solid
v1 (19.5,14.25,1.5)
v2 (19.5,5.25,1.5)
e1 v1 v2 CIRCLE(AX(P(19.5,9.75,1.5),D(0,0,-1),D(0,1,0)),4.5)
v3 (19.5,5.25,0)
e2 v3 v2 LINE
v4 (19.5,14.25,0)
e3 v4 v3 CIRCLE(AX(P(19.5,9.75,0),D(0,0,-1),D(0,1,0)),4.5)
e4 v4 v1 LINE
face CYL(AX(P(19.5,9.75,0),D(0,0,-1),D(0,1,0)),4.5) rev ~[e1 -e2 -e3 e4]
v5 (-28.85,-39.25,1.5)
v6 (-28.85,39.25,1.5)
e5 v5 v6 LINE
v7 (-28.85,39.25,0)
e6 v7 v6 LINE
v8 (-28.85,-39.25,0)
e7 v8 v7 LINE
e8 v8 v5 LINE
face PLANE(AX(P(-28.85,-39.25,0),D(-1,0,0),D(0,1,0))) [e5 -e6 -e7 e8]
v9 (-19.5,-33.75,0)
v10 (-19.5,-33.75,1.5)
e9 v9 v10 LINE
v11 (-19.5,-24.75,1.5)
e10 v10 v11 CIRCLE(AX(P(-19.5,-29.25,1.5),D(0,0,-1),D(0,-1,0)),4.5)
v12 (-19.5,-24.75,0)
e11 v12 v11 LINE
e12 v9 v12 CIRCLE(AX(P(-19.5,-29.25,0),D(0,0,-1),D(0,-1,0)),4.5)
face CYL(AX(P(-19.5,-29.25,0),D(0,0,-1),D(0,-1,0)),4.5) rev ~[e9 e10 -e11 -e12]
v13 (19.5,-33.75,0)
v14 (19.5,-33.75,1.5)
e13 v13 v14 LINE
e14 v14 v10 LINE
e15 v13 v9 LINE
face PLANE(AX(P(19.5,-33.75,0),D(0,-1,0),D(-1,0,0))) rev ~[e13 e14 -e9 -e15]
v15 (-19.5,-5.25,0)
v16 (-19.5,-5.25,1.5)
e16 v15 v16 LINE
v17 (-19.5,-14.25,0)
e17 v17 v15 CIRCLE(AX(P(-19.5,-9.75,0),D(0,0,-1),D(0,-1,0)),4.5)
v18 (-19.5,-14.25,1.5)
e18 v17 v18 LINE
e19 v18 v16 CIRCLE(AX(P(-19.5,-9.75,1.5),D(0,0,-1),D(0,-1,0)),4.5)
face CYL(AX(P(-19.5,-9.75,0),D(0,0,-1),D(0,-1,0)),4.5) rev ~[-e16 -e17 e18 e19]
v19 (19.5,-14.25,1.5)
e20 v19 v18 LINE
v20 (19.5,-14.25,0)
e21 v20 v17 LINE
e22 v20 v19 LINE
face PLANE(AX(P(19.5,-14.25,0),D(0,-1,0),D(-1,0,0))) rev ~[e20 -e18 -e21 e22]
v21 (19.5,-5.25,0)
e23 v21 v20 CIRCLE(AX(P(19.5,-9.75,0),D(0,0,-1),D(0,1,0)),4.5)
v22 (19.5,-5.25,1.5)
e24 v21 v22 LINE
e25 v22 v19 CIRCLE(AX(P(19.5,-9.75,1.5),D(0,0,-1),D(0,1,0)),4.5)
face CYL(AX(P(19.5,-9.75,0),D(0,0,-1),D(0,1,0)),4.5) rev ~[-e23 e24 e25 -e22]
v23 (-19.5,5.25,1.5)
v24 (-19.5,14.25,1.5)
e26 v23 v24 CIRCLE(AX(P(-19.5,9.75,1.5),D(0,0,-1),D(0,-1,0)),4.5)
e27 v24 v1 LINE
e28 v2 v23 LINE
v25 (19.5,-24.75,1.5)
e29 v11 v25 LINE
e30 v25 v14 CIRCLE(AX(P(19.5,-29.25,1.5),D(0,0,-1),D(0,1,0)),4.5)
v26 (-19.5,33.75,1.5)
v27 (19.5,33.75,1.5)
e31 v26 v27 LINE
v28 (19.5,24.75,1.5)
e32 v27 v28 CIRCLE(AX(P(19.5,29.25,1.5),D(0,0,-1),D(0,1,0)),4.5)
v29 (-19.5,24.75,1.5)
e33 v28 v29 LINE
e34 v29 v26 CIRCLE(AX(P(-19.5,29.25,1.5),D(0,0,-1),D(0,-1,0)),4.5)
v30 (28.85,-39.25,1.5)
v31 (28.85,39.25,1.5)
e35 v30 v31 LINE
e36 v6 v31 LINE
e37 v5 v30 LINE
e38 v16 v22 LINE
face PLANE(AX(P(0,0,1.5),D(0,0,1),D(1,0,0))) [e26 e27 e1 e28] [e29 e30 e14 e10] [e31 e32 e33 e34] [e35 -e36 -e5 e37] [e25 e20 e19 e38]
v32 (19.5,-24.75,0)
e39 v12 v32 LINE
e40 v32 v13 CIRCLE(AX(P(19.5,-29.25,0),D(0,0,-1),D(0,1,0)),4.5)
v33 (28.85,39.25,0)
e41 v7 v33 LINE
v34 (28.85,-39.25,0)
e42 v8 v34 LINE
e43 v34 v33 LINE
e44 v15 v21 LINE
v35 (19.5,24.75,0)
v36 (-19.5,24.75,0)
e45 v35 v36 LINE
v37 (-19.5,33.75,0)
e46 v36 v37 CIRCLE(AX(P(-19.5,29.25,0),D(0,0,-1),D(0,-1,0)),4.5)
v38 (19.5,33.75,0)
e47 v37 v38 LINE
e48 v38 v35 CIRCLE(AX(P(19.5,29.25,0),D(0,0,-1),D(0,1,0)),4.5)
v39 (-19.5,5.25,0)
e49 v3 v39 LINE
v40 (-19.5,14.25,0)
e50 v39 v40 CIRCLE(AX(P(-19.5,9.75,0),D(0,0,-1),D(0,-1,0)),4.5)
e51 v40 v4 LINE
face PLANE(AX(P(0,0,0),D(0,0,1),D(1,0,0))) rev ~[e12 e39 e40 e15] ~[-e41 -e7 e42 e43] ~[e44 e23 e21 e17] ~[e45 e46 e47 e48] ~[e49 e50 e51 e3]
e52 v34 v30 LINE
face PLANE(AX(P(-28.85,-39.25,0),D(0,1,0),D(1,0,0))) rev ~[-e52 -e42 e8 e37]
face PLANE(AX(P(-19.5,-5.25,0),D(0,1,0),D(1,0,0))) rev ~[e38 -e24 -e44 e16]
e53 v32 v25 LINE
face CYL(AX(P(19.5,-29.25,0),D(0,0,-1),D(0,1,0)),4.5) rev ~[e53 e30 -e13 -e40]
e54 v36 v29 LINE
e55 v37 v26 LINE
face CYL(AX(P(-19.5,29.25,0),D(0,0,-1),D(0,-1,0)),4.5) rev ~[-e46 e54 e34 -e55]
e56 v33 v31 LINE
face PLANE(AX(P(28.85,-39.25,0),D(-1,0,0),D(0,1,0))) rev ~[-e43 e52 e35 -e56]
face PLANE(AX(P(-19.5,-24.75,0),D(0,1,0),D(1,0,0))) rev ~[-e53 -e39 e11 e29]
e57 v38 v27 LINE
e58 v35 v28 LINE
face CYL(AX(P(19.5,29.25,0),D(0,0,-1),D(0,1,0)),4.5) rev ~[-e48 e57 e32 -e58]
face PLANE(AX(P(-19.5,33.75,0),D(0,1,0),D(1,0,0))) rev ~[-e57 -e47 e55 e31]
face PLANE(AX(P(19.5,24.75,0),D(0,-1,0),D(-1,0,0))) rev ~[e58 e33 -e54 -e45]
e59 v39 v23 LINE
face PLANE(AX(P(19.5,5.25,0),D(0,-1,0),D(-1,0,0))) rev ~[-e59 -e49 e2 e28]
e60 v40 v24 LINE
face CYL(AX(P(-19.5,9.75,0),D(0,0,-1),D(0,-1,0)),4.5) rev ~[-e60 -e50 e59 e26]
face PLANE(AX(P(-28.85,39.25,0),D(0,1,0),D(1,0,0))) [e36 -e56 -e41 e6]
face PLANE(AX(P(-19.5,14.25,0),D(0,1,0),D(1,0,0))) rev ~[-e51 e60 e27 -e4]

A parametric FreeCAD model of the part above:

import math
import FreeCAD as App
import Part
import Sketcher
from FreeCAD import Vector

doc = App.newDocument("Part")
params = doc.addObject("Spreadsheet::Sheet", "Params")
for row, (alias, value) in enumerate([
    ("sketch1_radius", "4.5 mm"),
    ("sketch1_width", "39 mm"),
    ("sketch1_width2", "57.7 mm"),
    ("sketch1_height", "78.5 mm"),
    ("pad1_length", "1.5 mm"),
], start=1):
    params.set(f"A{row}", alias)
    params.set(f"B{row}", "=" + value)
    params.setAlias(f"B{row}", alias)

body = doc.addObject("PartDesign::Body", "Body")

# Sketch on XY plane
sketch1 = doc.addObject("Sketcher::SketchObject", "Sketch")
body.addObject(sketch1)
sketch1.AttachmentSupport = (doc.XY_Plane, [""])
sketch1.MapMode = "FlatFace"
sketch1.addGeometry(Part.LineSegment(Vector(-28.9, 39.2, 0), Vector(-28.9, -39.2, 0)), False)
sketch1.addGeometry(Part.LineSegment(Vector(-28.9, -39.2, 0), Vector(28.9, -39.2, 0)), False)
sketch1.addGeometry(Part.LineSegment(Vector(28.9, -39.2, 0), Vector(28.9, 39.2, 0)), False)
sketch1.addGeometry(Part.LineSegment(Vector(28.9, 39.2, 0), Vector(-28.9, 39.2, 0)), False)
sketch1.addGeometry(Part.ArcOfCircle(Part.Circle(Vector(19.5, -29.2, 0), Vector(0, 0, 1), 4.5), math.radians(-90), math.radians(90)), False)
sketch1.addGeometry(Part.LineSegment(Vector(19.5, -33.8, 0), Vector(-19.5, -33.8, 0)), False)
sketch1.addGeometry(Part.ArcOfCircle(Part.Circle(Vector(-19.5, -29.2, 0), Vector(0, 0, 1), 4.5), math.radians(90), math.radians(270)), False)
sketch1.addGeometry(Part.LineSegment(Vector(-19.5, -24.8, 0), Vector(19.5, -24.8, 0)), False)
sketch1.addGeometry(Part.ArcOfCircle(Part.Circle(Vector(19.5, -9.8, 0), Vector(0, 0, 1), 4.5), math.radians(-90), math.radians(90)), False)
sketch1.addGeometry(Part.LineSegment(Vector(19.5, -14.2, 0), Vector(-19.5, -14.2, 0)), False)
sketch1.addGeometry(Part.ArcOfCircle(Part.Circle(Vector(-19.5, -9.8, 0), Vector(0, 0, 1), 4.5), math.radians(90), math.radians(270)), False)
sketch1.addGeometry(Part.LineSegment(Vector(-19.5, -5.2, 0), Vector(19.5, -5.2, 0)), False)
sketch1.addGeometry(Part.ArcOfCircle(Part.Circle(Vector(19.5, 9.8, 0), Vector(0, 0, 1), 4.5), math.radians(-90), math.radians(90)), False)
sketch1.addGeometry(Part.LineSegment(Vector(19.5, 5.2, 0), Vector(-19.5, 5.2, 0)), False)
sketch1.addGeometry(Part.ArcOfCircle(Part.Circle(Vector(-19.5, 9.8, 0), Vector(0, 0, 1), 4.5), math.radians(90), math.radians(270)), False)
sketch1.addGeometry(Part.LineSegment(Vector(-19.5, 14.2, 0), Vector(19.5, 14.2, 0)), False)
sketch1.addGeometry(Part.ArcOfCircle(Part.Circle(Vector(19.5, 29.2, 0), Vector(0, 0, 1), 4.5), math.radians(-90), math.radians(90)), False)
sketch1.addGeometry(Part.LineSegment(Vector(19.5, 24.8, 0), Vector(-19.5, 24.8, 0)), False)
sketch1.addGeometry(Part.ArcOfCircle(Part.Circle(Vector(-19.5, 29.2, 0), Vector(0, 0, 1), 4.5), math.radians(90), math.radians(270)), False)
sketch1.addGeometry(Part.LineSegment(Vector(-19.5, 33.8, 0), Vector(19.5, 33.8, 0)), False)
sketch1.addConstraint(Sketcher.Constraint("Coincident", 0, 2, 1, 1))
sketch1.addConstraint(Sketcher.Constraint("Coincident", 1, 2, 2, 1))
sketch1.addConstraint(Sketcher.Constraint("Coincident", 2, 2, 3, 1))
sketch1.addConstraint(Sketcher.Constraint("Coincident", 3, 2, 0, 1))
sketch1.addConstraint(Sketcher.Constraint("Tangent", 4, 1, 5, 1))
sketch1.addConstraint(Sketcher.Constraint("Tangent", 5, 2, 6, 2))
sketch1.addConstraint(Sketcher.Constraint("Tangent", 6, 1, 7, 1))
sketch1.addConstraint(Sketcher.Constraint("Tangent", 7, 2, 4, 2))
sketch1.addConstraint(Sketcher.Constraint("Tangent", 8, 1, 9, 1))
sketch1.addConstraint(Sketcher.Constraint("Tangent", 9, 2, 10, 2))
sketch1.addConstraint(Sketcher.Constraint("Tangent", 10, 1, 11, 1))
sketch1.addConstraint(Sketcher.Constraint("Tangent", 11, 2, 8, 2))
sketch1.addConstraint(Sketcher.Constraint("Tangent", 12, 1, 13, 1))
sketch1.addConstraint(Sketcher.Constraint("Tangent", 13, 2, 14, 2))
sketch1.addConstraint(Sketcher.Constraint("Tangent", 14, 1, 15, 1))
sketch1.addConstraint(Sketcher.Constraint("Tangent", 15, 2, 12, 2))
sketch1.addConstraint(Sketcher.Constraint("Tangent", 16, 1, 17, 1))
sketch1.addConstraint(Sketcher.Constraint("Tangent", 17, 2, 18, 2))
sketch1.addConstraint(Sketcher.Constraint("Tangent", 18, 1, 19, 1))
sketch1.addConstraint(Sketcher.Constraint("Tangent", 19, 2, 16, 2))
sketch1.addConstraint(Sketcher.Constraint("Vertical", 0))
sketch1.addConstraint(Sketcher.Constraint("Horizontal", 1))
sketch1.addConstraint(Sketcher.Constraint("Vertical", 2))
sketch1.addConstraint(Sketcher.Constraint("Horizontal", 3))
sketch1.addConstraint(Sketcher.Constraint("Horizontal", 5))
sketch1.addConstraint(Sketcher.Constraint("Horizontal", 7))
sketch1.addConstraint(Sketcher.Constraint("Horizontal", 9))
sketch1.addConstraint(Sketcher.Constraint("Horizontal", 11))
sketch1.addConstraint(Sketcher.Constraint("Horizontal", 13))
sketch1.addConstraint(Sketcher.Constraint("Horizontal", 15))
sketch1.addConstraint(Sketcher.Constraint("Horizontal", 17))
sketch1.addConstraint(Sketcher.Constraint("Horizontal", 19))
sketch1.addConstraint(Sketcher.Constraint("Equal", 6, 8))
sketch1.addConstraint(Sketcher.Constraint("Equal", 10, 12))
sketch1.addConstraint(Sketcher.Constraint("Equal", 14, 16))
sketch1.addConstraint(Sketcher.Constraint("Symmetric", 10, 3, 12, 3, -1, 1))
sketch1.addConstraint(Sketcher.Constraint("Symmetric", 6, 3, 16, 3, -1, 1))
sketch1.addConstraint(Sketcher.Constraint("Symmetric", 0, 2, 2, 2, -1, 1))
sketch1.addConstraint(Sketcher.Constraint("Vertical", 4, 3, 8, 3))
sketch1.addConstraint(Sketcher.Constraint("Vertical", 6, 3, 10, 3))
sketch1.addConstraint(Sketcher.Constraint("Vertical", 8, 3, 12, 3))
sketch1.addConstraint(Sketcher.Constraint("Vertical", 10, 3, 14, 3))
sketch1.addConstraint(Sketcher.Constraint("Vertical", 14, 3, 18, 3))
sketch1.addConstraint(Sketcher.Constraint("Radius", 4, 4.5))
sketch1.addConstraint(Sketcher.Constraint("DistanceX", 5, 2, 5, 1, 39.0))
sketch1.addConstraint(Sketcher.Constraint("DistanceX", 1, 1, 1, 2, 57.7))
sketch1.addConstraint(Sketcher.Constraint("DistanceY", 0, 2, 0, 1, 78.5))
sketch1.addConstraint(Sketcher.Constraint("DistanceY", 4, 3, 12, 3, 39.0))
sketch1.addConstraint(Sketcher.Constraint("DistanceY", 0, 2, 6, 3, 10.0))
sketch1.setExpression("Constraints[43]", "Params.sketch1_radius")
sketch1.setExpression("Constraints[44]", "Params.sketch1_width")
sketch1.setExpression("Constraints[45]", "Params.sketch1_width2")
sketch1.setExpression("Constraints[46]", "Params.sketch1_height")
pad1 = doc.addObject("PartDesign::Pad", "Pad")
body.addObject(pad1)
pad1.Profile = sketch1
pad1.setExpression("Length", "Params.pad1_length")

doc.recompute()
